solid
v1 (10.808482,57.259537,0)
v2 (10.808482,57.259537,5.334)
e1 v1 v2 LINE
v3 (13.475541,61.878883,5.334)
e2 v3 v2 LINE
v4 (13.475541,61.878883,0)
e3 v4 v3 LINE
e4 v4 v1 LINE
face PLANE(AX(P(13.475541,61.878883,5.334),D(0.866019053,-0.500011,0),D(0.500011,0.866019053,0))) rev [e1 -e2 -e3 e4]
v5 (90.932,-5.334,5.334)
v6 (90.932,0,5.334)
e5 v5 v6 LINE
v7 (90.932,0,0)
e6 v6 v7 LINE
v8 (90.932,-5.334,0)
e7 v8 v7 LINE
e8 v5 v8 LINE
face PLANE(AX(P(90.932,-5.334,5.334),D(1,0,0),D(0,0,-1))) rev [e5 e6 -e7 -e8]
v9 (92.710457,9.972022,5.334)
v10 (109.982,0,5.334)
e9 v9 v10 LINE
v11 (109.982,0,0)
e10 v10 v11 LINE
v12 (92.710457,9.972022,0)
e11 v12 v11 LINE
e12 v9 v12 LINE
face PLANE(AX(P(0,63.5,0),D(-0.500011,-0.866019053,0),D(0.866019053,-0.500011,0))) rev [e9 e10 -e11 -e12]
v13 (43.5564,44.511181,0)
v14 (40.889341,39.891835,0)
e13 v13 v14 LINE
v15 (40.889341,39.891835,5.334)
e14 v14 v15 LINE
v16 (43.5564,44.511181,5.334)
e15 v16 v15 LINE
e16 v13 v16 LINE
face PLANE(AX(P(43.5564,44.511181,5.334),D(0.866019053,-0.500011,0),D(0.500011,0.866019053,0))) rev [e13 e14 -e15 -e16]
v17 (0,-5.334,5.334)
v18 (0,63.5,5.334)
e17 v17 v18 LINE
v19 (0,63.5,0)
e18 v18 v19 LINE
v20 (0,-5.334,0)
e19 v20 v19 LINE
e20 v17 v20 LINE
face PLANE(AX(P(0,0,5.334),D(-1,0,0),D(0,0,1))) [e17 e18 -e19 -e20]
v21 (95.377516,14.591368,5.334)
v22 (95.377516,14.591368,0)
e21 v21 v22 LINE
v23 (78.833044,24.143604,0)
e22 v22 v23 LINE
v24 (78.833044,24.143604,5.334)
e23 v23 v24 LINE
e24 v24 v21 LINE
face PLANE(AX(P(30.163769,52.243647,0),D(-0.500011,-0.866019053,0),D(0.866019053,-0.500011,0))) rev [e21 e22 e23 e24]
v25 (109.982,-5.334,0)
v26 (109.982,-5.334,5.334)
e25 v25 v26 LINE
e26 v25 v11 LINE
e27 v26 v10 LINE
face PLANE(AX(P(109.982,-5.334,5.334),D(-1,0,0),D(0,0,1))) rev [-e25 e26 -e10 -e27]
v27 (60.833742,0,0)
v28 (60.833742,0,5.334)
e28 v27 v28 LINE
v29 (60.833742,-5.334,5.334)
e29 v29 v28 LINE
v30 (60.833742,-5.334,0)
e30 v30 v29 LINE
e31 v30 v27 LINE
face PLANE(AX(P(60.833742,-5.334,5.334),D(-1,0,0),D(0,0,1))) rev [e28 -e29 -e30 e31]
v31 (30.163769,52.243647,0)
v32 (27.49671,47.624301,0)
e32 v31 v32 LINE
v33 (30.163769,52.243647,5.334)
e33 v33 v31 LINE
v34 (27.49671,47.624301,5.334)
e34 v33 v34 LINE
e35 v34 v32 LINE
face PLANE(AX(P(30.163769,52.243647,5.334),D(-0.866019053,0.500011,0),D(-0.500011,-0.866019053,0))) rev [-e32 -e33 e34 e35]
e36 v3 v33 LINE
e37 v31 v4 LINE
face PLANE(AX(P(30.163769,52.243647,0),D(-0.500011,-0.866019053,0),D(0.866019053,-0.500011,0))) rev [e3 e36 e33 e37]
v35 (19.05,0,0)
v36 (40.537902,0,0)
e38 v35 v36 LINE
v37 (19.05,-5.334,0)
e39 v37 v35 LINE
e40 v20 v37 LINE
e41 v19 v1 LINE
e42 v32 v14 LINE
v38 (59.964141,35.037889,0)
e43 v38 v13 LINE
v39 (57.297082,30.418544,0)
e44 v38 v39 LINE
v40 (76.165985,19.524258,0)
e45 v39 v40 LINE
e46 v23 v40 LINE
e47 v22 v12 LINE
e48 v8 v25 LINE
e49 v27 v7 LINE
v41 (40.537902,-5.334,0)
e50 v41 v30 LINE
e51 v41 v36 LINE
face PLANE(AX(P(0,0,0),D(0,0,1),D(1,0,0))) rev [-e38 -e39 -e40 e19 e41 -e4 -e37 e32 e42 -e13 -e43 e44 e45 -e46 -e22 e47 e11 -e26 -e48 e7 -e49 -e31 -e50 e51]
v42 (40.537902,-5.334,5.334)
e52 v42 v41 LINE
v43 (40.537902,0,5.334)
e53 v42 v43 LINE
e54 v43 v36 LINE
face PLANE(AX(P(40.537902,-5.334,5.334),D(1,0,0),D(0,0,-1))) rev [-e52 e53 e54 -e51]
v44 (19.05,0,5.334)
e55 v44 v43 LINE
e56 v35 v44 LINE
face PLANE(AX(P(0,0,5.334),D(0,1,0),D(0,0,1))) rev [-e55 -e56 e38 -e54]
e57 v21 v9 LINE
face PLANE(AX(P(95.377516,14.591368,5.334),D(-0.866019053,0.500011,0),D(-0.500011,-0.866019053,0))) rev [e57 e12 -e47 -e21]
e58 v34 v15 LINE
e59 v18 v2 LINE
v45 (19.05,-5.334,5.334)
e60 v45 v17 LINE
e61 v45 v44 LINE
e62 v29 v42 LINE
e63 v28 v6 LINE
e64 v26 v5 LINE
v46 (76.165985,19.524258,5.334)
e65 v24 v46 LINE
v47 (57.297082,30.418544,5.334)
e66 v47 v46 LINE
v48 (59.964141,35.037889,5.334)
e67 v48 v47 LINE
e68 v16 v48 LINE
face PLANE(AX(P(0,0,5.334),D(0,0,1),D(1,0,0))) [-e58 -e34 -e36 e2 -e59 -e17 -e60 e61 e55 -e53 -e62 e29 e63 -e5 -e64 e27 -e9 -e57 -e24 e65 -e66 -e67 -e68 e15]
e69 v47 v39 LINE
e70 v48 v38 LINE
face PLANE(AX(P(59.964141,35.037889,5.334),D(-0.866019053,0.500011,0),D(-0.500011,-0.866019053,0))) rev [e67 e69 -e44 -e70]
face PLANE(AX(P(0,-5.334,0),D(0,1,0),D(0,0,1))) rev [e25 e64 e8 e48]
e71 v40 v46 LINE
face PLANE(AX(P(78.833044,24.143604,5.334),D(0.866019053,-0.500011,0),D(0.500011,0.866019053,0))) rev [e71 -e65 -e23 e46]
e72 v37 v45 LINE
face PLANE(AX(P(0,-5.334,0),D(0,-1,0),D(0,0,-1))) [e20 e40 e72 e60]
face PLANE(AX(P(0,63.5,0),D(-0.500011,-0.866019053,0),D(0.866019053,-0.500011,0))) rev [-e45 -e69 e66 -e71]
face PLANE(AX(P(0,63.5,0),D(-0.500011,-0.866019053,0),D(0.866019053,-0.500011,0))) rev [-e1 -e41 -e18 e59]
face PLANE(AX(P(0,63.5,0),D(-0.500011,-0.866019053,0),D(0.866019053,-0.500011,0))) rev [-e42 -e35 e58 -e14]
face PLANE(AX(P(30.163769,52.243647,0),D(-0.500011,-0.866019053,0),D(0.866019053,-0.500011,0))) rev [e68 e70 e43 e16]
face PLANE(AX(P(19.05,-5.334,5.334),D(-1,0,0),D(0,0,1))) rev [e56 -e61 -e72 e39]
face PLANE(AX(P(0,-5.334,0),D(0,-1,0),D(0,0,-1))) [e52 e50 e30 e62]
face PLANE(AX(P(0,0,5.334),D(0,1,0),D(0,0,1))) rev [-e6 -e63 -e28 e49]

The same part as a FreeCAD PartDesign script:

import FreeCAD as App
import Part
import Sketcher

V = App.Vector
Q = App.Units.Quantity

doc = App.newDocument("Part")
body = doc.addObject("PartDesign::Body", "Body")

# Sketch on XY plane
sketch1 = body.newObject("Sketcher::SketchObject", "Sketch")
sketch1.AttachmentSupport = (doc.getObject("XY_Plane"), [""])
sketch1.MapMode = "FlatFace"
sketch1.addGeometry([
    Part.LineSegment(V(0, 64, 0), V(0, 0, 0)),
    Part.LineSegment(V(0, 0, 0), V(110, 0, 0)),
    Part.LineSegment(V(110, 0, 0), V(110, 64, 0)),
    Part.LineSegment(V(110, 64, 0), V(0, 64, 0)),
], False)
sketch1.addConstraint([
    Sketcher.Constraint("Coincident", 0, 2, 1, 1),
    Sketcher.Constraint("Coincident", 1, 2, 2, 1),
    Sketcher.Constraint("Coincident", 2, 2, 3, 1),
    Sketcher.Constraint("Coincident", 3, 2, 0, 1),
    Sketcher.Constraint("Vertical", 0),
    Sketcher.Constraint("Horizontal", 1),
    Sketcher.Constraint("Vertical", 2),
    Sketcher.Constraint("Horizontal", 3),
    Sketcher.Constraint("Coincident", 0, 2, -1, 1),
    Sketcher.Constraint("DistanceY", 0, 2, 0, 1, Q("2.5 in")),
    Sketcher.Constraint("DistanceX", 1, 1, 1, 2, Q("4.33 in")),
])
pad1 = body.newObject("PartDesign::Pad", "Pad")
pad1.Profile = sketch1
pad1.Length = Q("0.21 in")

# Sketch on XY plane
sketch2 = body.newObject("Sketcher::SketchObject", "Sketch001")
sketch2.AttachmentSupport = (doc.getObject("XY_Plane"), [""])
sketch2.MapMode = "FlatFace"
sketch2.AttachmentOffset = App.Placement(V(0, 0, 0.21 * 25.4), App.Rotation())
sketch2.addGeometry([
    Part.LineSegment(V(0, 64, 0), V(110, 0, 0)),
    Part.LineSegment(V(110, 0, 0), V(110, 64, 0)),
    Part.LineSegment(V(110, 64, 0), V(0, 64, 0)),
], False)
sketch2.addConstraint([
    Sketcher.Constraint("Coincident", 0, 2, 1, 1),
    Sketcher.Constraint("Coincident", 1, 2, 2, 1),
    Sketcher.Constraint("Coincident", 2, 2, 0, 1),
    Sketcher.Constraint("Vertical", 1),
    Sketcher.Constraint("Horizontal", 2),
    Sketcher.Constraint("PointOnObject", 0, 2, -1),
    Sketcher.Constraint("PointOnObject", 2, 2, -2),
    Sketcher.Constraint("DistanceY", 1, 1, 1, 2, Q("2.5 in")),
    Sketcher.Constraint("DistanceX", 2, 2, 2, 1, Q("4.33 in")),
])
pocket1 = body.newObject("PartDesign::Pocket", "Pocket")
pocket1.Profile = sketch2
pocket1.Type = "ThroughAll"

# Sketch on XZ plane
sketch3 = body.newObject("Sketcher::SketchObject", "Sketch002")
sketch3.AttachmentSupport = (doc.getObject("XZ_Plane"), [""])
sketch3.MapMode = "FlatFace"
sketch3.addGeometry([
    Part.LineSegment(V(19, 0, 0), V(19, 5, 0)),  # 0
    Part.LineSegment(V(19, 5, 0), V(0, 5, 0)),  # 1
    Part.LineSegment(V(0, 5, 0), V(0, 0, 0)),  # 2
    Part.LineSegment(V(0, 0, 0), V(19, 0, 0)),  # 3
    Part.LineSegment(V(61, 0, 0), V(61, 5, 0)),  # 4
    Part.LineSegment(V(61, 5, 0), V(41, 5, 0)),  # 5
    Part.LineSegment(V(41, 5, 0), V(41, 0, 0)),  # 6
    Part.LineSegment(V(41, 0, 0), V(61, 0, 0)),  # 7
    Part.LineSegment(V(110, 0, 0), V(110, 5, 0)),  # 8
    Part.LineSegment(V(110, 5, 0), V(91, 5, 0)),  # 9
    Part.LineSegment(V(91, 5, 0), V(91, 0, 0)),  # 10
    Part.LineSegment(V(91, 0, 0), V(110, 0, 0)),  # 11
], False)
sketch3.addConstraint([
    Sketcher.Constraint("Coincident", 0, 2, 1, 1),
    Sketcher.Constraint("Coincident", 1, 2, 2, 1),
    Sketcher.Constraint("Coincident", 2, 2, 3, 1),
    Sketcher.Constraint("Coincident", 3, 2, 0, 1),
    Sketcher.Constraint("Coincident", 4, 2, 5, 1),
    Sketcher.Constraint("Coincident", 5, 2, 6, 1),
    Sketcher.Constraint("Coincident", 6, 2, 7, 1),
    Sketcher.Constraint("Coincident", 7, 2, 4, 1),
    Sketcher.Constraint("Coincident", 8, 2, 9, 1),
    Sketcher.Constraint("Coincident", 9, 2, 10, 1),
    Sketcher.Constraint("Coincident", 10, 2, 11, 1),
    Sketcher.Constraint("Coincident", 11, 2, 8, 1),
    Sketcher.Constraint("Vertical", 0),
    Sketcher.Constraint("Horizontal", 1),
    Sketcher.Constraint("Vertical", 2),
    Sketcher.Constraint("Horizontal", 3),
    Sketcher.Constraint("Vertical", 4),
    Sketcher.Constraint("Horizontal", 5),
    Sketcher.Constraint("Vertical", 6),
    Sketcher.Constraint("Horizontal", 7),
    Sketcher.Constraint("Vertical", 8),
    Sketcher.Constraint("Horizontal", 9),
    Sketcher.Constraint("Vertical", 10),
    Sketcher.Constraint("Horizontal", 11),
    Sketcher.Constraint("Coincident", 2, 2, -1, 1),
    Sketcher.Constraint("PointOnObject", 6, 2, -1),
    Sketcher.Constraint("PointOnObject", 10, 2, -1),
    Sketcher.Constraint("Horizontal", 1, 2, 4, 2),
    Sketcher.Constraint("Horizontal", 5, 2, 8, 2),
    Sketcher.Constraint("Equal", 3, 9),
    Sketcher.Constraint("DistanceX", 1, 2, 1, 1, Q("0.75 in")),
    Sketcher.Constraint("DistanceY", 0, 1, 0, 2, Q("0.21 in")),
    Sketcher.Constraint("DistanceX", -1, 1, 8, 2, Q("4.33 in")),
    Sketcher.Constraint("DistanceX", 5, 2, 5, 1, Q("20.29584 mm")),
    Sketcher.Constraint("DistanceX", -1, 1, 5, 2, Q("40.537902 mm")),
])
pad2 = body.newObject("PartDesign::Pad", "Pad001")
pad2.Profile = sketch3
pad2.Length = Q("0.21 in")

# Sketch on an angled plane
sketch4 = body.newObject("Sketcher::SketchObject", "Sketch003")
sketch4.Placement = App.Placement(V(27.49671, 47.624301, 0), App.Rotation(V(0.866019053, -0.500011, 0), V(0, 0, -1), V(0.500011, 0.866019053, 0), "ZXY"))
sketch4.addGeometry([
    Part.LineSegment(V(-19, 0, 0), V(-19, -5, 0)),  # 0
    Part.LineSegment(V(-19, -5, 0), V(0, -5, 0)),  # 1
    Part.LineSegment(V(0, -5, 0), V(0, 0, 0)),  # 2
    Part.LineSegment(V(0, 0, 0), V(-19, 0, 0)),  # 3
    Part.LineSegment(V(15, 0, 0), V(15, -5, 0)),  # 4
    Part.LineSegment(V(15, -5, 0), V(34, -5, 0)),  # 5
    Part.LineSegment(V(34, -5, 0), V(34, 0, 0)),  # 6
    Part.LineSegment(V(34, 0, 0), V(15, 0, 0)),  # 7
    Part.LineSegment(V(56, 0, 0), V(56, -5, 0)),  # 8
    Part.LineSegment(V(56, -5, 0), V(75, -5, 0)),  # 9
    Part.LineSegment(V(75, -5, 0), V(75, 0, 0)),  # 10
    Part.LineSegment(V(75, 0, 0), V(56, 0, 0)),  # 11
], False)
sketch4.addConstraint([
    Sketcher.Constraint("Coincident", 0, 2, 1, 1),
    Sketcher.Constraint("Coincident", 1, 2, 2, 1),
    Sketcher.Constraint("Coincident", 2, 2, 3, 1),
    Sketcher.Constraint("Coincident", 3, 2, 0, 1),
    Sketcher.Constraint("Coincident", 4, 2, 5, 1),
    Sketcher.Constraint("Coincident", 5, 2, 6, 1),
    Sketcher.Constraint("Coincident", 6, 2, 7, 1),
    Sketcher.Constraint("Coincident", 7, 2, 4, 1),
    Sketcher.Constraint("Coincident", 8, 2, 9, 1),
    Sketcher.Constraint("Coincident", 9, 2, 10, 1),
    Sketcher.Constraint("Coincident", 10, 2, 11, 1),
    Sketcher.Constraint("Coincident", 11, 2, 8, 1),
    Sketcher.Constraint("Vertical", 0),
    Sketcher.Constraint("Horizontal", 1),
    Sketcher.Constraint("Vertical", 2),
    Sketcher.Constraint("Horizontal", 3),
    Sketcher.Constraint("Vertical", 4),
    Sketcher.Constraint("Horizontal", 5),
    Sketcher.Constraint("Vertical", 6),
    Sketcher.Constraint("Horizontal", 7),
    Sketcher.Constraint("Vertical", 8),
    Sketcher.Constraint("Horizontal", 9),
    Sketcher.Constraint("Vertical", 10),
    Sketcher.Constraint("Horizontal", 11),
    Sketcher.Constraint("Coincident", 2, 2, -1, 1),
    Sketcher.Constraint("PointOnObject", 6, 2, -1),
    Sketcher.Constraint("PointOnObject", 10, 2, -1),
    Sketcher.Constraint("Horizontal", 1, 2, 4, 2),
    Sketcher.Constraint("Horizontal", 5, 2, 8, 2),
    Sketcher.Constraint("DistanceY", 0, 2, 0, 1, Q("0.21 in")),
    Sketcher.Constraint("DistanceX", 9, 1, 9, 2, Q("19.104051 mm")),
    Sketcher.Constraint("DistanceX", -1, 1, 9, 2, Q("75.302902 mm")),
    Sketcher.Constraint("DistanceX", 1, 1, 1, 2, Q("19.270047 mm")),
    Sketcher.Constraint("DistanceX", 5, 1, 5, 2, Q("18.946167 mm")),
    Sketcher.Constraint("DistanceX", -1, 1, 4, 2, Q("15.464592 mm")),
])
pad3 = body.newObject("PartDesign::Pad", "Pad002")
pad3.Profile = sketch4
pad3.Length = Q("0.21 in")

doc.recompute()
